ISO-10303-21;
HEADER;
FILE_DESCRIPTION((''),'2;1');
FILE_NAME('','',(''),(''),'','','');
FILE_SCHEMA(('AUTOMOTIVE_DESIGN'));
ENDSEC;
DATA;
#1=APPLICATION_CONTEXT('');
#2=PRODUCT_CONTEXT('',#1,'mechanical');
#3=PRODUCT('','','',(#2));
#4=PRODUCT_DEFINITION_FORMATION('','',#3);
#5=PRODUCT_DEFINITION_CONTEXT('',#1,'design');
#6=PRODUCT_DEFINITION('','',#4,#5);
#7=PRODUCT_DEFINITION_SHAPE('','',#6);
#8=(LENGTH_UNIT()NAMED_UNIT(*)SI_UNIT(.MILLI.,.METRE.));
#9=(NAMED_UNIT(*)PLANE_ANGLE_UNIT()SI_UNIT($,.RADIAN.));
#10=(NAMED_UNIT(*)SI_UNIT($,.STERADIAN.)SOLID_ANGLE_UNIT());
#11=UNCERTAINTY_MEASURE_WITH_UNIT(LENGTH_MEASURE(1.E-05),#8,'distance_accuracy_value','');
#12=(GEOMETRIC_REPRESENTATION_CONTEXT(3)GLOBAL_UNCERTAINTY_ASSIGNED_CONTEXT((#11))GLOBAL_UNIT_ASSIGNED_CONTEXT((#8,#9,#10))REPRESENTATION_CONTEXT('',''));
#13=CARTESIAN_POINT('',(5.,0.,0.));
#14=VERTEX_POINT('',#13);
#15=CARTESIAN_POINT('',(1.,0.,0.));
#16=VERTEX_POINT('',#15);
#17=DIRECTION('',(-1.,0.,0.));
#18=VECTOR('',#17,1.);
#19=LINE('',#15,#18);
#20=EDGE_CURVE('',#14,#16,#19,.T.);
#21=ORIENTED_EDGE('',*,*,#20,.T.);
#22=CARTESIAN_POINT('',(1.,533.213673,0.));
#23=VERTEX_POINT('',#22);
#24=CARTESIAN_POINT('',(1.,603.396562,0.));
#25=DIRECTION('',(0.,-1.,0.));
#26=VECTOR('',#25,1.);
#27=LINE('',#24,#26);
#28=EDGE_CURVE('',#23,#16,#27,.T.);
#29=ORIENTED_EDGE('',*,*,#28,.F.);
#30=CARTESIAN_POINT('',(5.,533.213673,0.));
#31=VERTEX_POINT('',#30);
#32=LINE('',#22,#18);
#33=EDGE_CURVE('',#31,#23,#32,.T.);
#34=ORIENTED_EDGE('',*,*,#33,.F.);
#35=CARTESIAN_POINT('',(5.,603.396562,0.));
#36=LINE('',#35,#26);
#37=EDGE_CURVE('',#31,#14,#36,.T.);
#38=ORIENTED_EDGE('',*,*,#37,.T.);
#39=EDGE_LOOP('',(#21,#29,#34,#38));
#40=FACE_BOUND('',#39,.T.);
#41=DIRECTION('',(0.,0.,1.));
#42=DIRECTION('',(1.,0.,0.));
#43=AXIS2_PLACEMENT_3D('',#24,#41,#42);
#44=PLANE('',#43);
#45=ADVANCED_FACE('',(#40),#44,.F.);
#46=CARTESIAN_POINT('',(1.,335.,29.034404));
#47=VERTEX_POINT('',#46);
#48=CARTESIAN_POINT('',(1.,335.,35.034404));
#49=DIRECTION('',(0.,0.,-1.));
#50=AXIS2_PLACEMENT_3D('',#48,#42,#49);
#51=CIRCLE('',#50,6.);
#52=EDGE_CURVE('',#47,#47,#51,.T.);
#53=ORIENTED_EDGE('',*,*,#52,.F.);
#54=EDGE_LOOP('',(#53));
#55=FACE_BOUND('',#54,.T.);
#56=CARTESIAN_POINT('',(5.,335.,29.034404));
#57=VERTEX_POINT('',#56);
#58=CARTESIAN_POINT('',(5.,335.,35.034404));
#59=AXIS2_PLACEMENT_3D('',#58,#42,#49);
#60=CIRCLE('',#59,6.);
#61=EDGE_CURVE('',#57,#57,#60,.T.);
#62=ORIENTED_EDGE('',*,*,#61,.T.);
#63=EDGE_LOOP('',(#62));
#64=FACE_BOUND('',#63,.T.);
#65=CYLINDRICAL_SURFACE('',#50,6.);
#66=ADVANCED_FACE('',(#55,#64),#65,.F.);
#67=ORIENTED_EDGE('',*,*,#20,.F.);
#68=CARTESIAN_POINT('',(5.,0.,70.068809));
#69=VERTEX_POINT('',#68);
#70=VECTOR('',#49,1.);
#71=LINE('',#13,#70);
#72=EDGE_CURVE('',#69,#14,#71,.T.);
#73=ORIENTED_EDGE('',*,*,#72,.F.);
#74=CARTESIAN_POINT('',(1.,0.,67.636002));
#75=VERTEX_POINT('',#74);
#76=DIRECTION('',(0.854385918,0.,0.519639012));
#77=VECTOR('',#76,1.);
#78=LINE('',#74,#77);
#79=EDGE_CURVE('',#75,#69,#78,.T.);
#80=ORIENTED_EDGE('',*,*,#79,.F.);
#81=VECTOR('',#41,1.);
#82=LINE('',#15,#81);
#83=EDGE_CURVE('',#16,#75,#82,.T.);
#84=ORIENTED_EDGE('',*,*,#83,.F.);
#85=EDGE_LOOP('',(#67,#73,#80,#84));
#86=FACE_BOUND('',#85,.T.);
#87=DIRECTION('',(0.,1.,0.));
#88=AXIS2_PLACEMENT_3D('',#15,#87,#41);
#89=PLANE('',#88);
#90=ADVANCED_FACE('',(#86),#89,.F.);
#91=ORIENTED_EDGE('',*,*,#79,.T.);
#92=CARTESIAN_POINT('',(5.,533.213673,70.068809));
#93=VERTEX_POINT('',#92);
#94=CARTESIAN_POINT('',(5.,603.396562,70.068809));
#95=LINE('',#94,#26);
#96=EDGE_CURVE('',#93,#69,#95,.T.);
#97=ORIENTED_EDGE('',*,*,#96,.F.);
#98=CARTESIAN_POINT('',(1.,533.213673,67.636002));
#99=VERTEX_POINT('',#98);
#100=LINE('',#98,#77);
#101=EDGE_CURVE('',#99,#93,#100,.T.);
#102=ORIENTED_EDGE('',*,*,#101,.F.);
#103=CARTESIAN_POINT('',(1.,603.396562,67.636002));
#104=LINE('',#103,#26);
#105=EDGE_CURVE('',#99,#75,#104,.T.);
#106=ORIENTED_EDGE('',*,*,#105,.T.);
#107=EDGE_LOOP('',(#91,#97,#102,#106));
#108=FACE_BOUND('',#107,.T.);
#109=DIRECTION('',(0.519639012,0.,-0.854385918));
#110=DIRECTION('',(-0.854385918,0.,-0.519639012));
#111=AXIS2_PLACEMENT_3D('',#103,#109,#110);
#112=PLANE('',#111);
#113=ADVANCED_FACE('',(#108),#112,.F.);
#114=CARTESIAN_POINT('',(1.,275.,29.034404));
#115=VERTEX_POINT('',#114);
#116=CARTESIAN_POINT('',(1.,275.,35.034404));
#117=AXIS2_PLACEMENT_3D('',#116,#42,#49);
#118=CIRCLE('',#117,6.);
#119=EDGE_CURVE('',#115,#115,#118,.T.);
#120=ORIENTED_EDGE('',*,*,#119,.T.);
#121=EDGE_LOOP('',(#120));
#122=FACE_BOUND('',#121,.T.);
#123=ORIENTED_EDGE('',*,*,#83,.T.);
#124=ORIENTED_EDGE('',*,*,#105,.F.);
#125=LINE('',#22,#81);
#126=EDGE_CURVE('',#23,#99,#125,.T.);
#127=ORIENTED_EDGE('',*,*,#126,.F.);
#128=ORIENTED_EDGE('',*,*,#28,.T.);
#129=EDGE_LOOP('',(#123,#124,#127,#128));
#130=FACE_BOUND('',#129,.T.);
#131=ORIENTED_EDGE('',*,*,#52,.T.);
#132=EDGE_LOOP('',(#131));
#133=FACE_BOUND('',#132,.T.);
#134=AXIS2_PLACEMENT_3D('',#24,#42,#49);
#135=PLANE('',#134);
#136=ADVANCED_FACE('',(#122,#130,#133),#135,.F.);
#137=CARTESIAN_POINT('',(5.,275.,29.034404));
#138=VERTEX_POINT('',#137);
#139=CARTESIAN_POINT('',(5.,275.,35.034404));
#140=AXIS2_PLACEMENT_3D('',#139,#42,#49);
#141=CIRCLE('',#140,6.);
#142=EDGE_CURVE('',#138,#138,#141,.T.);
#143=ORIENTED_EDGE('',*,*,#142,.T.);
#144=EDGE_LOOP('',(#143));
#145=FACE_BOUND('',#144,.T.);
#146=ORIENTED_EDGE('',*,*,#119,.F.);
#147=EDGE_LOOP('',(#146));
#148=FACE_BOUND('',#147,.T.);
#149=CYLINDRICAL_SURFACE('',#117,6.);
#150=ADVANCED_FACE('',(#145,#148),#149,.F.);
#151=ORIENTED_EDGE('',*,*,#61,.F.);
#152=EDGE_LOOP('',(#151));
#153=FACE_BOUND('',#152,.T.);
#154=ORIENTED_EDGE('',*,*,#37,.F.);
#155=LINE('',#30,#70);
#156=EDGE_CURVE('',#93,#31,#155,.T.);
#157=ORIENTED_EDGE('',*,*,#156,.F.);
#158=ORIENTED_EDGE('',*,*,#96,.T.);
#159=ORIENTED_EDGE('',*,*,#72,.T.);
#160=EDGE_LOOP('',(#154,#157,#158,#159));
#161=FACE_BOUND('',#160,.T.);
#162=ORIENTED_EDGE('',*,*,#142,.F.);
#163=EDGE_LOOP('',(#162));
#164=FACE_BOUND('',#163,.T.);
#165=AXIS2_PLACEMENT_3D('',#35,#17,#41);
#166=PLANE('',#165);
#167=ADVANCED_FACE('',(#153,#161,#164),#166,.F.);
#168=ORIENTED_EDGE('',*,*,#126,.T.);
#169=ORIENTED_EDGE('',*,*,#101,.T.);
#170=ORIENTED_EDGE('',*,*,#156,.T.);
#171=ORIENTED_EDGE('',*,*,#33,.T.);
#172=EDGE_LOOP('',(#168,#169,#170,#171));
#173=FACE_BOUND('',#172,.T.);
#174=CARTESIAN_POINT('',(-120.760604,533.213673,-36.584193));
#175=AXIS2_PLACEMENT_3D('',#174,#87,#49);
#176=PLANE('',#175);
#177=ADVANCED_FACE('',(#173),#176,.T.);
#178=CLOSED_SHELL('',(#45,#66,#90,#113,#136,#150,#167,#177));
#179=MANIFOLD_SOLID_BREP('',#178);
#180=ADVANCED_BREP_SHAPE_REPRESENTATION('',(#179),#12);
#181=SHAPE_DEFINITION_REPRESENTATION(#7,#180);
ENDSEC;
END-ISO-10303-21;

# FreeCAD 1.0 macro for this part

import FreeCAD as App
import Part
import Sketcher
from FreeCAD import Vector


def add_polygon(sketch, points):
    """Adds a closed chain of lines whose ends are joined by coincident constraints."""
    first, n = sketch.GeometryCount, len(points)
    for a, b in zip(points, points[1:] + points[:1]):
        sketch.addGeometry(Part.LineSegment(App.Vector(*a, 0), App.Vector(*b, 0)), False)
    for i in range(n):
        sketch.addConstraint(Sketcher.Constraint("Coincident", first + i, 2, first + (i + 1) % n, 1))

doc = App.newDocument("Part")
params = doc.addObject("Spreadsheet::Sheet", "Params")
for row, (alias, value) in enumerate([
    ("sketch1_width", "4 mm"),
    ("pad1_length", "533.213673 mm"),
    ("sketch2_diameter", "12 mm"),
], start=1):
    params.set(f"A{row}", alias)
    params.set(f"B{row}", "=" + value)
    params.setAlias(f"B{row}", alias)

body = doc.addObject("PartDesign::Body", "Body")

sketch1 = body.newObject("Sketcher::SketchObject", "Sketch")
sketch1.AttachmentSupport = (doc.getObject("XZ_Plane"), [""])
sketch1.MapMode = "FlatFace"
add_polygon(sketch1, [(5, 0), (1, 0), (1, 67.636002), (5, 70.068809)])
sketch1.addConstraint([
    Sketcher.Constraint("Horizontal", 0),
    Sketcher.Constraint("Vertical", 1),
    Sketcher.Constraint("Vertical", 3),
    Sketcher.Constraint("PointOnObject", 0, 2, -1),
    Sketcher.Constraint("DistanceX", 0, 2, 0, 1, 4.0),
    Sketcher.Constraint("DistanceX", -1, 1, 0, 2, 1.0),
    Sketcher.Constraint("DistanceY", 1, 1, 1, 2, 67.636002),
    Sketcher.Constraint("DistanceY", 3, 2, 3, 1, 70.068809),
])
sketch1.setExpression("Constraints[8]", "Params.sketch1_width")
pad1 = body.newObject("PartDesign::Pad", "Pad")
pad1.Profile = sketch1
pad1.setExpression("Length", "Params.pad1_length")
pad1.Reversed = True

sketch2 = body.newObject("Sketcher::SketchObject", "Sketch001")
sketch2.AttachmentSupport = (doc.getObject("YZ_Plane"), [""])
sketch2.MapMode = "FlatFace"
sketch2.AttachmentOffset = App.Placement(Vector(0, 0, 5), App.Rotation())
sketch2.addGeometry([
    Part.Circle(Vector(335, 35.034404, 0), Vector(0, 0, 1), 6),
    Part.Circle(Vector(275, 35.034404, 0), Vector(0, 0, 1), 6),
], False)
sketch2.addConstraint([
    Sketcher.Constraint("Equal", 0, 1),
    Sketcher.Constraint("Horizontal", 0, 3, 1, 3),
    Sketcher.Constraint("Diameter", 0, 12.0),
    Sketcher.Constraint("DistanceX", -1, 1, 0, 3, 335.0),
    Sketcher.Constraint("DistanceX", -1, 1, 1, 3, 275.0),
    Sketcher.Constraint("DistanceY", -1, 1, 0, 3, 35.034404),
])
sketch2.setExpression("Constraints[2]", "Params.sketch2_diameter")
pocket1 = body.newObject("PartDesign::Pocket", "Pocket")
pocket1.Profile = sketch2
pocket1.Type = "ThroughAll"

doc.recompute()
